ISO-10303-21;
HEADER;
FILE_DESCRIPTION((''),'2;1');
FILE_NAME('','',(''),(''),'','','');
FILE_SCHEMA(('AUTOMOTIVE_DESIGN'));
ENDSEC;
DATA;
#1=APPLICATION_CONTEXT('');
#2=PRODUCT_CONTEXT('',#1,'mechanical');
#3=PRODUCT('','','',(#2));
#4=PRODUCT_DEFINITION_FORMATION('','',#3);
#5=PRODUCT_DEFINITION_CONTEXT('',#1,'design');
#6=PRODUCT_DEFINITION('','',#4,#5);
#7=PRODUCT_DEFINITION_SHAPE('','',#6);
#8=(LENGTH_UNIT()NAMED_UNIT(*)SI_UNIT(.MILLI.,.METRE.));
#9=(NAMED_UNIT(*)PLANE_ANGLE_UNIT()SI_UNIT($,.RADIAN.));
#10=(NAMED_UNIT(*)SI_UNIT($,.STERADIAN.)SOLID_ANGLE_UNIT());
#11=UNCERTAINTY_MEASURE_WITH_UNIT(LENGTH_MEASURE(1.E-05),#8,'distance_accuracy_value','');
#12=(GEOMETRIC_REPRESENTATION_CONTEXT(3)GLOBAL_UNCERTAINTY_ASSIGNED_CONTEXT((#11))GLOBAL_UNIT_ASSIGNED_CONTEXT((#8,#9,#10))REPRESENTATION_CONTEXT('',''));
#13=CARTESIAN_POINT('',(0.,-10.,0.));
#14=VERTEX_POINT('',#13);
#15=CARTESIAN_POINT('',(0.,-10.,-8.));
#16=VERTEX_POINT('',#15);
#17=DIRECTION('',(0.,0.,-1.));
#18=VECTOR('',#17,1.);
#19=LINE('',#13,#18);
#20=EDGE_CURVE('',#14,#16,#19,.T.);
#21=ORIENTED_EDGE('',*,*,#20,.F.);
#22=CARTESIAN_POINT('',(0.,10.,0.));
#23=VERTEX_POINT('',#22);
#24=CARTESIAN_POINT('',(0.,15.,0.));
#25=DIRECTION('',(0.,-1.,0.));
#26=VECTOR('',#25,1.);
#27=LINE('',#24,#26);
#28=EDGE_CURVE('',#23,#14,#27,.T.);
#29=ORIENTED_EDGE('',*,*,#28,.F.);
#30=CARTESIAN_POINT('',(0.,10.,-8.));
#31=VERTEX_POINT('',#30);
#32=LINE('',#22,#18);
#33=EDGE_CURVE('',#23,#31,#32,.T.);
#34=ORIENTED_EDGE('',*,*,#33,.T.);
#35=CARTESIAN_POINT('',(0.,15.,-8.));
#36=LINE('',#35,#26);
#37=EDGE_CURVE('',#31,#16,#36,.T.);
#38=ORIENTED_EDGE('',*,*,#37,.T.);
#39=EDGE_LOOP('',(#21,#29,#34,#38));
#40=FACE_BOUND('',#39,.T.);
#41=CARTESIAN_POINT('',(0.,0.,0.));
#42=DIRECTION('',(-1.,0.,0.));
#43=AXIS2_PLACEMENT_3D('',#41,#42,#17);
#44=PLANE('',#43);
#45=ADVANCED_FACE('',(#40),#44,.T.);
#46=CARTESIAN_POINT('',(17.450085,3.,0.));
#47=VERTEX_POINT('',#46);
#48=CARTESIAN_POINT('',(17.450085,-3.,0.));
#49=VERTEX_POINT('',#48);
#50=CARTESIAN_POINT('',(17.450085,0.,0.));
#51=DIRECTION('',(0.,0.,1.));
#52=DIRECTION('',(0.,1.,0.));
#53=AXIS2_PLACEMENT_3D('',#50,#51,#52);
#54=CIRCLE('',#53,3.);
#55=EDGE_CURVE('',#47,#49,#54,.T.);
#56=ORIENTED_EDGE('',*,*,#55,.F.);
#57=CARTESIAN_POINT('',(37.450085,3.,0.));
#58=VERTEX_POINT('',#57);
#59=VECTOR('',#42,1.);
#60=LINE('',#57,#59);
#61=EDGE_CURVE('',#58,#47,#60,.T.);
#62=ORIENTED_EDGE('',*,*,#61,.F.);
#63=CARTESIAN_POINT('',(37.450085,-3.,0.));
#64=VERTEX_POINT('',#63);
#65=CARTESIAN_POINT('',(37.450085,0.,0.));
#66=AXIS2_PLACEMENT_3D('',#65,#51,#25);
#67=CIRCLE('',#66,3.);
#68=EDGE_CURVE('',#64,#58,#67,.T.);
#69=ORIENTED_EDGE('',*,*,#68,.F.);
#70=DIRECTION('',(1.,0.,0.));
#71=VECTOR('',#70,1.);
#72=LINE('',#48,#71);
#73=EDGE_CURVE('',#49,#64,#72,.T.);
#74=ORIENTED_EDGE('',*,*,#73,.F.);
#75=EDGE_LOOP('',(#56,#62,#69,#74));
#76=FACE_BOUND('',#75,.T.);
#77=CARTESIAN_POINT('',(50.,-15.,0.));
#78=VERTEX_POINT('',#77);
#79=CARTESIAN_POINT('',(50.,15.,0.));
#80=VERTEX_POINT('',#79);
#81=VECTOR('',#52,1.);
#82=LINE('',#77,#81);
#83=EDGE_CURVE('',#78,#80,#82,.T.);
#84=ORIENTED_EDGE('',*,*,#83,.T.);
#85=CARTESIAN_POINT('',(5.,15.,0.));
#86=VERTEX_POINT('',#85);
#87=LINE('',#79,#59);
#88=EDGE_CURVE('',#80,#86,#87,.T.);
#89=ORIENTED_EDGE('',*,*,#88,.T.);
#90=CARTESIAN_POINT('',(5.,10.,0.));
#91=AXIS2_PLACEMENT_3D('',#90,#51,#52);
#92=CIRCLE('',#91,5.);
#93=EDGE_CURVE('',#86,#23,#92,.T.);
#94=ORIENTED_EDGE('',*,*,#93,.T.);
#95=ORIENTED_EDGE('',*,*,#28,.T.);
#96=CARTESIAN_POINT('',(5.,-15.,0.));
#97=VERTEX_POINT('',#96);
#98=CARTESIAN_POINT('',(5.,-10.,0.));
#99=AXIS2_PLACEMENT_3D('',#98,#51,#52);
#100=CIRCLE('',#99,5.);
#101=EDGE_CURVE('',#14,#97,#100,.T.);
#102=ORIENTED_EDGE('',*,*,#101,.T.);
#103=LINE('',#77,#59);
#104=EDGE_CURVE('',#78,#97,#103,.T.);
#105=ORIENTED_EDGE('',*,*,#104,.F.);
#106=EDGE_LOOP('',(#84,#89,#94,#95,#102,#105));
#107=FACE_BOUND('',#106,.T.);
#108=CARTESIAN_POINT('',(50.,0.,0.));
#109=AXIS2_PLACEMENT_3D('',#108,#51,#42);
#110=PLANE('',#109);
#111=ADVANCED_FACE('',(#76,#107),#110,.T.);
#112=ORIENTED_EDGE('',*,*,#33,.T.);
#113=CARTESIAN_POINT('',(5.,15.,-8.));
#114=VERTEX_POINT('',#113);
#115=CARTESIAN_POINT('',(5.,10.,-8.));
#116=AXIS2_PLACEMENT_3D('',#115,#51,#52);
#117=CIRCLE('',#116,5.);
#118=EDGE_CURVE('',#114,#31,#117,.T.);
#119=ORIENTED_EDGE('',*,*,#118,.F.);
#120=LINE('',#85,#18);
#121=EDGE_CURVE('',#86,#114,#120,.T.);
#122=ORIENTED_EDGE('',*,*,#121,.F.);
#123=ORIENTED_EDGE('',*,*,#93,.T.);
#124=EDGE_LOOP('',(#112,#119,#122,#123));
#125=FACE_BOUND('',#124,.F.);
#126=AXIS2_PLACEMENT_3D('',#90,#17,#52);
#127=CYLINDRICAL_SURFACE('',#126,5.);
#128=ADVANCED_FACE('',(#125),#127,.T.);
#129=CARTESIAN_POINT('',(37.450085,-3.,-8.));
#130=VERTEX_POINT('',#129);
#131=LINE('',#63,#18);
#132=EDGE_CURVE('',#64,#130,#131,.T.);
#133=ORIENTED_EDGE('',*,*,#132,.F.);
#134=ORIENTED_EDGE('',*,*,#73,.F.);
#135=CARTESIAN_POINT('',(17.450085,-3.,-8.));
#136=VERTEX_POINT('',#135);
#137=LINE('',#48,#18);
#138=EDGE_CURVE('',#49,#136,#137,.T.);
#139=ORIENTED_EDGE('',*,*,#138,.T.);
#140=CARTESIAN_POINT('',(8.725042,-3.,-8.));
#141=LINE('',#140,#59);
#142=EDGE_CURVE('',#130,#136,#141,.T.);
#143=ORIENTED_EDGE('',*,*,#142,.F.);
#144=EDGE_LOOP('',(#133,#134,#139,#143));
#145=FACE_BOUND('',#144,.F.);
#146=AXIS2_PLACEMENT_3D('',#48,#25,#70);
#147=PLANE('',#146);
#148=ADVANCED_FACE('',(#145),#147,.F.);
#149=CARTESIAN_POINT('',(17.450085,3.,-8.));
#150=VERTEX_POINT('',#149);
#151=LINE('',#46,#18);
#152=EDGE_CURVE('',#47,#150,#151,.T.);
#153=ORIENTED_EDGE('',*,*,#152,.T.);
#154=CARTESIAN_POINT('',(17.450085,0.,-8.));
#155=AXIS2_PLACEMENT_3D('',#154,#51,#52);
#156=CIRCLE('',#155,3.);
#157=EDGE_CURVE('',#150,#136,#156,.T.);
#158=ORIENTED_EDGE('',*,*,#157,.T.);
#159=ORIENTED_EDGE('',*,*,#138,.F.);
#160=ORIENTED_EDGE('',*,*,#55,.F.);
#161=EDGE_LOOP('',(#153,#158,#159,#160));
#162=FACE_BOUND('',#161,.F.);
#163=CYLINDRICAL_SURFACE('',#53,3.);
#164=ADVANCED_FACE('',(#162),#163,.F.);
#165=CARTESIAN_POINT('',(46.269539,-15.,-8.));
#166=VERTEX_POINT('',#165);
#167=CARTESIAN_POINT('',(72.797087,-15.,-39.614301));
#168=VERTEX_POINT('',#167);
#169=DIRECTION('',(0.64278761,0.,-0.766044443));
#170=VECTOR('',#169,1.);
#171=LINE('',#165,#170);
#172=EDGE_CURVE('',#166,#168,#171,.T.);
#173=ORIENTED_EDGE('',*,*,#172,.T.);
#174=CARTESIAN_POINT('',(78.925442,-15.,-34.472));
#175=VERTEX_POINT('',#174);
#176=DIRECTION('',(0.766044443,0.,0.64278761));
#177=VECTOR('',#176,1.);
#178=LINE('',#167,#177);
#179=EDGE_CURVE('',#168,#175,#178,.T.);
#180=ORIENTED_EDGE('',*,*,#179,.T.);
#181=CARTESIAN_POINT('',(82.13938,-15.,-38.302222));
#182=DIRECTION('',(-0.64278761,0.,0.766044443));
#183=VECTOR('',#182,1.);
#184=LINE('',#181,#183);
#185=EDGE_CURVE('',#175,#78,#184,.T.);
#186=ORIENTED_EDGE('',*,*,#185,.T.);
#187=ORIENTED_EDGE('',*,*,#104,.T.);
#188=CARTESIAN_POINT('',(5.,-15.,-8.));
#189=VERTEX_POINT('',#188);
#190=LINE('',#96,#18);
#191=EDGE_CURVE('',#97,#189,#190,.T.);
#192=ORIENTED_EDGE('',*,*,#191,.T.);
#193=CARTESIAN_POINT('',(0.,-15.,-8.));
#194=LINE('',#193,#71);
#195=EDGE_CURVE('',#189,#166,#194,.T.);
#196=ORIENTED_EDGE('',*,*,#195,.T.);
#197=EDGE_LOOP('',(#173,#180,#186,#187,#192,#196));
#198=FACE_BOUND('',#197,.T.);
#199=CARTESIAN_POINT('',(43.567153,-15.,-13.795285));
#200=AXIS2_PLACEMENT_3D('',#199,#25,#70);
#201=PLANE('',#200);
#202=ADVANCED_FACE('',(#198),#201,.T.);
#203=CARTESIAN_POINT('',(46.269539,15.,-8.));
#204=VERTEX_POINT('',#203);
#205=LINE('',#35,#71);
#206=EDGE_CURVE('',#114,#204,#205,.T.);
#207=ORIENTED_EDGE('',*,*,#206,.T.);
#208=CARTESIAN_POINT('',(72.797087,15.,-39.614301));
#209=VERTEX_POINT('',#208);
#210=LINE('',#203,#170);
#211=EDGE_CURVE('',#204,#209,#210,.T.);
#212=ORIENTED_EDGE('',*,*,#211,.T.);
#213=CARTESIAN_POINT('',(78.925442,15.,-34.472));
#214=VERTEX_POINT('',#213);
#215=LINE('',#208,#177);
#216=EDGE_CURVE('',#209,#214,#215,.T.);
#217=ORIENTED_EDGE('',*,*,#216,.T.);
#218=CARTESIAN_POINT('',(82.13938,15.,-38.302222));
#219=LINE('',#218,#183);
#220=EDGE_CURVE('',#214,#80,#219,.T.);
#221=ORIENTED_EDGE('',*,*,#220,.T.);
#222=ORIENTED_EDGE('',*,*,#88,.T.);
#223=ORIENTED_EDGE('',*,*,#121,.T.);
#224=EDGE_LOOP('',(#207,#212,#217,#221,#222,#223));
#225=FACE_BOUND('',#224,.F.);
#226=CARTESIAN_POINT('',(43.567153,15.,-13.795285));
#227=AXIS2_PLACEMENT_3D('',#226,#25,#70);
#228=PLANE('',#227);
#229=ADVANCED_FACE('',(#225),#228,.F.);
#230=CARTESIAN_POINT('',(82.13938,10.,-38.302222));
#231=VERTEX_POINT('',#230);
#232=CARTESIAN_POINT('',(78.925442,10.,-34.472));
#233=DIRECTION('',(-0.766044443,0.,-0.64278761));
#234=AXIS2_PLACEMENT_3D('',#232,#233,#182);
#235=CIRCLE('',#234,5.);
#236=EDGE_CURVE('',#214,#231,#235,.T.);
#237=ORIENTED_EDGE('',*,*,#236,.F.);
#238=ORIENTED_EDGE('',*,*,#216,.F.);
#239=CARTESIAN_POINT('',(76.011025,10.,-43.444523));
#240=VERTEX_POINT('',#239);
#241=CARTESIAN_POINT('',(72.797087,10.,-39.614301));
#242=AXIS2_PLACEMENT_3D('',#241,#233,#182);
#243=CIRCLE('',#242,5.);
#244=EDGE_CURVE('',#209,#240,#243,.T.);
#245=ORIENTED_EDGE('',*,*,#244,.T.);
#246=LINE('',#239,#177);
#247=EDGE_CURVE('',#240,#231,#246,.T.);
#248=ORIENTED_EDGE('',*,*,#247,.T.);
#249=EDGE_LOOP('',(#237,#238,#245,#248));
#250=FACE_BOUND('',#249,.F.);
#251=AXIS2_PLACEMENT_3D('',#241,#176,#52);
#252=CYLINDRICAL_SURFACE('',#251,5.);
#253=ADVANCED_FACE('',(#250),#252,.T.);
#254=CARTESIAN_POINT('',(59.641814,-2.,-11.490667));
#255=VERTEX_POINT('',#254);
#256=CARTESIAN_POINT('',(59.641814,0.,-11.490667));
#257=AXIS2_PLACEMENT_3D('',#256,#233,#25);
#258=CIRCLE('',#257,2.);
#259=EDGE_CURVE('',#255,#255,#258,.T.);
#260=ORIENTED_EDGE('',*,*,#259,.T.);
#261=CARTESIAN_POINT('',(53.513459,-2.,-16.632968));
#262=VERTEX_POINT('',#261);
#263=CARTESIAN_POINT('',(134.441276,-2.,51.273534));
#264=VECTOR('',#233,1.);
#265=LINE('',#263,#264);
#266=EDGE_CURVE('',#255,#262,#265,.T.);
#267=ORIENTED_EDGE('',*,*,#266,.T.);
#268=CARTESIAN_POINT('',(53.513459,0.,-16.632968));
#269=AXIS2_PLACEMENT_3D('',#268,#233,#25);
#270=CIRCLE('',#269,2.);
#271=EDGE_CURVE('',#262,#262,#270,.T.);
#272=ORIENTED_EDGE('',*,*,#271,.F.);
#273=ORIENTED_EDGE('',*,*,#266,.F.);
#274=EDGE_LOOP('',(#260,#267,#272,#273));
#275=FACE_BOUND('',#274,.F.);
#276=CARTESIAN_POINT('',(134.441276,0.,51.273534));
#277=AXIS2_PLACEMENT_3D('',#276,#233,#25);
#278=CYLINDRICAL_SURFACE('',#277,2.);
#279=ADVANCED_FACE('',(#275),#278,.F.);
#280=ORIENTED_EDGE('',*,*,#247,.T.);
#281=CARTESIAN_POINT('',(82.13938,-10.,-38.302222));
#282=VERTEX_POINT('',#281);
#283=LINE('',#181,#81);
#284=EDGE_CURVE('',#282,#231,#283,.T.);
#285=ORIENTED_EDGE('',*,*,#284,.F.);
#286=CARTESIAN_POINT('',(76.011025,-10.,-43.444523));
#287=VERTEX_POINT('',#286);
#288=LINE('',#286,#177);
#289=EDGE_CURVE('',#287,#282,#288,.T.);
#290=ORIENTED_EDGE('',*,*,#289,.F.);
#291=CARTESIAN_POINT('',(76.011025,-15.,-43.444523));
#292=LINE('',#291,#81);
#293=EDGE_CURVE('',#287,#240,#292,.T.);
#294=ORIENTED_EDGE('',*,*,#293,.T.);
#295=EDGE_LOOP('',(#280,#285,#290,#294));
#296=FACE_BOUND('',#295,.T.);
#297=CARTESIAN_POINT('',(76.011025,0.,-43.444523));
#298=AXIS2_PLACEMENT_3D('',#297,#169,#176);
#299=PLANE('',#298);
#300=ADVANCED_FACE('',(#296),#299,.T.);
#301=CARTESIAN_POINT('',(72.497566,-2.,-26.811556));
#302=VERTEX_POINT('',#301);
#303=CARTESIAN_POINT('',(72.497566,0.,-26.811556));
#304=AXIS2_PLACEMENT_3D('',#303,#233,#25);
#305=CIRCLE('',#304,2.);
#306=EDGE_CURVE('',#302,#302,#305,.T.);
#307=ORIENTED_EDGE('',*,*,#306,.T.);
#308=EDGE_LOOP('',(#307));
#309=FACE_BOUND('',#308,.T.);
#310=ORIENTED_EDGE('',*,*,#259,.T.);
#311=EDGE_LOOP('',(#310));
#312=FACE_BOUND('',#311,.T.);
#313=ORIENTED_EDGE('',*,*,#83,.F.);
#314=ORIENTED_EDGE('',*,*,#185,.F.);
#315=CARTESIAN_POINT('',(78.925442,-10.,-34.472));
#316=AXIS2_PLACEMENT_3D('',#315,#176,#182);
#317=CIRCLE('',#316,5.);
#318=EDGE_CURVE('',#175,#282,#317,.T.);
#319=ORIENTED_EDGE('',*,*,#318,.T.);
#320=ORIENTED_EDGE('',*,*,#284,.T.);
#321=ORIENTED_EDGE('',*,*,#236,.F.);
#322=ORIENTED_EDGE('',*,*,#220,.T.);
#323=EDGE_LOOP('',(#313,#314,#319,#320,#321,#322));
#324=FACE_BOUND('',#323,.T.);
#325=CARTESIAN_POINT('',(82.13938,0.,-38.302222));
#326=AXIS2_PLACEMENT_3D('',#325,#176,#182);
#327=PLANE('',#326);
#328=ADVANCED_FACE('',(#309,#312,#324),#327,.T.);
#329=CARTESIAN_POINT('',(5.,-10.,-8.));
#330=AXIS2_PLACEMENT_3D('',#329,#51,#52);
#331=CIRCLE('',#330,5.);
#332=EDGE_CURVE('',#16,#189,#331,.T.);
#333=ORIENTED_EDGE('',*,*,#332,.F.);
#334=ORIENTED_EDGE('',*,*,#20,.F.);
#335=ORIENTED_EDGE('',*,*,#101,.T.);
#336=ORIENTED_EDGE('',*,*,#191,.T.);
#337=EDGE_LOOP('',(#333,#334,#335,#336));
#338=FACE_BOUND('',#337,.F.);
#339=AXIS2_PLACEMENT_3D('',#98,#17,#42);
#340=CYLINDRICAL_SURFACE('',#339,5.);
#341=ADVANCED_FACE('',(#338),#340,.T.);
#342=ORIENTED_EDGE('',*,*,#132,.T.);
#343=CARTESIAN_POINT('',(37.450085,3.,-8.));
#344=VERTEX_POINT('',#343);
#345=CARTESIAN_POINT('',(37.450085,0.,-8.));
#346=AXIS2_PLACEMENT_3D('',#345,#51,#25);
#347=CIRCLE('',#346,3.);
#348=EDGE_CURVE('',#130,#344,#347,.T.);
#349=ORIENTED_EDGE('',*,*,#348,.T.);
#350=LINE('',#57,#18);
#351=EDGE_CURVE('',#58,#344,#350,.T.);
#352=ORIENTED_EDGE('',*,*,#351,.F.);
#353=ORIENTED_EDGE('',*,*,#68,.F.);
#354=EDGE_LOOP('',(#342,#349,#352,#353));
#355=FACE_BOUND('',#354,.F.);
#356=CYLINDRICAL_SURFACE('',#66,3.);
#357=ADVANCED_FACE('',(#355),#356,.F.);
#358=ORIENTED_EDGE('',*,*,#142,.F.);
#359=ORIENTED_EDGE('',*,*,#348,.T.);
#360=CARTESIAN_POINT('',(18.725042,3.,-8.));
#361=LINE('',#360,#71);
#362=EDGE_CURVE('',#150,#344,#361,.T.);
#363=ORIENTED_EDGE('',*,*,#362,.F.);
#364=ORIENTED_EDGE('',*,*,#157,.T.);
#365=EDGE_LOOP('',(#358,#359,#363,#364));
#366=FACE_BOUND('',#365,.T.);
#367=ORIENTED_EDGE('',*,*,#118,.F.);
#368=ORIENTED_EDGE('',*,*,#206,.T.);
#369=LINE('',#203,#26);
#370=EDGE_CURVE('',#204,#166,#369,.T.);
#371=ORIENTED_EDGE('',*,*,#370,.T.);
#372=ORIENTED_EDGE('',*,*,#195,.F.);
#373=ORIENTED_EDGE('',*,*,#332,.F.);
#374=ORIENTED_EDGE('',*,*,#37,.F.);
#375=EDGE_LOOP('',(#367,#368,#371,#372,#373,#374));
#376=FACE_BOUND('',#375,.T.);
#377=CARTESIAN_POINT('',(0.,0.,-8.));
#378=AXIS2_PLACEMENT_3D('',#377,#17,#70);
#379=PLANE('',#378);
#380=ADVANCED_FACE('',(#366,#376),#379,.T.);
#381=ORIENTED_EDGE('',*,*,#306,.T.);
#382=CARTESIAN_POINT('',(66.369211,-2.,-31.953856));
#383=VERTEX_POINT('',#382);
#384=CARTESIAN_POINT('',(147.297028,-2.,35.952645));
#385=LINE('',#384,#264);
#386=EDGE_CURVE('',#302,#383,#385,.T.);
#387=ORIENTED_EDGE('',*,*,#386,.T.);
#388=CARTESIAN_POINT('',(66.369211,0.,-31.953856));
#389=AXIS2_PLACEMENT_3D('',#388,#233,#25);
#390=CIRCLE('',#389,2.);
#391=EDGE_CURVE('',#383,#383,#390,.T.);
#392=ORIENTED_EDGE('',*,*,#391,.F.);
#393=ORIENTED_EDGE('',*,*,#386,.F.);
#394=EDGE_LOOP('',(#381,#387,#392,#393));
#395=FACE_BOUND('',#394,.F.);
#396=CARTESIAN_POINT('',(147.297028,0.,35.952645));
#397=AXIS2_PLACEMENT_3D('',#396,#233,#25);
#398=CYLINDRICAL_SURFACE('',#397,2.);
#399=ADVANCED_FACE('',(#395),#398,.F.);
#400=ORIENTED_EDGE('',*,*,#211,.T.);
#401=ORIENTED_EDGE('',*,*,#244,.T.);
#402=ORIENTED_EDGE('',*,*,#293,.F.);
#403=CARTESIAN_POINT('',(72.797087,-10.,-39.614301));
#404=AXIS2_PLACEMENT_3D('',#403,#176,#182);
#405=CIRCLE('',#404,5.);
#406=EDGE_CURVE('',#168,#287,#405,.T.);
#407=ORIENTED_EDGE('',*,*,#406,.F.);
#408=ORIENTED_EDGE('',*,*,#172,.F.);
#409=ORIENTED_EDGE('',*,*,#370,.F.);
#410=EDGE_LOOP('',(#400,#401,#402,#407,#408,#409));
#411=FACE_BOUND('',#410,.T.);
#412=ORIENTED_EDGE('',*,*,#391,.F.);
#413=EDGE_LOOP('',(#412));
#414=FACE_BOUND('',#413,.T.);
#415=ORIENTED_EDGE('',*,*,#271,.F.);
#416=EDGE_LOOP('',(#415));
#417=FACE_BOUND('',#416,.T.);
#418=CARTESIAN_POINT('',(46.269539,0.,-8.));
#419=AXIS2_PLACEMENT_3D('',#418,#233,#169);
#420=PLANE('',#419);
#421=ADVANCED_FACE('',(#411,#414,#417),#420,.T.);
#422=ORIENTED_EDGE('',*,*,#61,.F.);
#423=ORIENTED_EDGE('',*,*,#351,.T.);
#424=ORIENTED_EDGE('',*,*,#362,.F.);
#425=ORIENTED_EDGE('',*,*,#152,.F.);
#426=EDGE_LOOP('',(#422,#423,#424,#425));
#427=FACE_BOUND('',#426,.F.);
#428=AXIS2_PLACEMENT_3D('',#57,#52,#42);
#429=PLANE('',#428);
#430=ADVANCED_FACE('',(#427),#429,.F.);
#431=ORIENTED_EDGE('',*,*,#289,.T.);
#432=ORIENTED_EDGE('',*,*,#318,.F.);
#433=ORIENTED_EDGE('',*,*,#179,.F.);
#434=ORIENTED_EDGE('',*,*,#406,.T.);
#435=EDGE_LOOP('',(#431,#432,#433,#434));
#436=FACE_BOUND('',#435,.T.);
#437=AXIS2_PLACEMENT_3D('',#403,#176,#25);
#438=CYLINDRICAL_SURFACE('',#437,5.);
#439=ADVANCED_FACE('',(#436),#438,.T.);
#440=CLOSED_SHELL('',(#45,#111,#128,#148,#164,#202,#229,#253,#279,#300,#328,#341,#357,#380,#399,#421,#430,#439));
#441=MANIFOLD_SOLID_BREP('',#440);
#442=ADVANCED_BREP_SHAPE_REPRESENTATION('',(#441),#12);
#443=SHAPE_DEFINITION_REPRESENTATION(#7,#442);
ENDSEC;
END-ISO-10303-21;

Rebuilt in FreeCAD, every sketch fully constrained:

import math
import FreeCAD as App
import Part
import Sketcher
Q = App.Units.Quantity


def edges_at(feature, points):
    """Names of the edges that pass closest to the given points."""
    edges = feature.Shape.Edges
    near = lambda p: min(range(len(edges)), key=lambda i: edges[i].distToShape(Part.Vertex(*p))[0])
    return sorted({f"Edge{near(p) + 1}" for p in points})


def add_polygon(sketch, points):
    """Adds a closed chain of lines whose ends are joined by coincident constraints."""
    first, n = sketch.GeometryCount, len(points)
    for a, b in zip(points, points[1:] + points[:1]):
        sketch.addGeometry(Part.LineSegment(App.Vector(*a, 0), App.Vector(*b, 0)), False)
    for i in range(n):
        sketch.addConstraint(Sketcher.Constraint("Coincident", first + i, 2, first + (i + 1) % n, 1))

doc = App.newDocument("Part")
params = doc.addObject("Spreadsheet::Sheet", "Params")
for row, (alias, value) in enumerate([
    ("sketch1_width", "50 mm"),
    ("sketch1_height", "8 mm"),
    ("sketch1_length", "8 mm"),
    ("sketch1_length2", "50 mm"),
    ("pad1_length", "30 mm"),
    ("sketch2_radius", "3 mm"),
    ("sketch2_width", "20 mm"),
    ("sketch3_diameter", "4 mm"),
    ("hole_diameter", "4 mm"),
    ("fillet_radius", "5 mm"),
], start=1):
    params.set(f"A{row}", alias)
    params.set(f"B{row}", "=" + value)
    params.setAlias(f"B{row}", alias)

body = doc.addObject("PartDesign::Body", "Body")

# Sketch on XZ plane
sketch1 = body.newObject("Sketcher::SketchObject", "Sketch")
sketch1.AttachmentSupport = (doc.getObject("XZ_Plane"), [""])
sketch1.MapMode = "FlatFace"
add_polygon(sketch1, [(50, 0), (0, 0), (0, -8), (46, -8), (76, -43), (82, -38)])  # lines 0-5
sketch1.addConstraint([
    Sketcher.Constraint("Horizontal", 0),
    Sketcher.Constraint("Vertical", 1),
    Sketcher.Constraint("Horizontal", 2),
    Sketcher.Constraint("Coincident", 0, 2, -1, 1),
    Sketcher.Constraint("Perpendicular", 3, 4),
    Sketcher.Constraint("Perpendicular", 4, 5),
    Sketcher.Constraint("DistanceX", 0, 2, 0, 1, Q("50 mm")),
    Sketcher.Constraint("DistanceY", 1, 2, 1, 1, Q("8 mm")),
    Sketcher.Constraint("Angle", 3, Q("-50 deg")),
    Sketcher.Constraint("Distance", 4, Q("8 mm")),
    Sketcher.Constraint("Distance", 5, Q("50 mm")),
])
sketch1.setExpression("Constraints[12]", "Params.sketch1_width")
sketch1.setExpression("Constraints[13]", "Params.sketch1_height")
sketch1.setExpression("Constraints[15]", "Params.sketch1_length")
sketch1.setExpression("Constraints[16]", "Params.sketch1_length2")
pad1 = body.newObject("PartDesign::Pad", "Pad")
pad1.Profile = sketch1
pad1.setExpression("Length", "Params.pad1_length")
pad1.Midplane = True

# Sketch on XY plane
sketch2 = body.newObject("Sketcher::SketchObject", "Sketch001")
sketch2.AttachmentSupport = (doc.getObject("XY_Plane"), [""])
sketch2.MapMode = "FlatFace"
sketch2.addGeometry([
    Part.ArcOfCircle(Part.Circle(App.Vector(17.5, 0, 0), App.Vector(0, 0, 1), 3), math.radians(90), math.radians(270)),
    Part.LineSegment(App.Vector(17.5, -3, 0), App.Vector(37.5, -3, 0)),
    Part.ArcOfCircle(Part.Circle(App.Vector(37.5, 0, 0), App.Vector(0, 0, 1), 3), math.radians(-90), math.radians(90)),
    Part.LineSegment(App.Vector(37.5, 3, 0), App.Vector(17.5, 3, 0)),
], False)
sketch2.addConstraint([
    Sketcher.Constraint("Tangent", 0, 2, 1, 1),
    Sketcher.Constraint("Tangent", 1, 2, 2, 1),
    Sketcher.Constraint("Tangent", 2, 2, 3, 1),
    Sketcher.Constraint("Tangent", 3, 2, 0, 1),
    Sketcher.Constraint("Horizontal", 1),
    Sketcher.Constraint("Horizontal", 3),
    Sketcher.Constraint("PointOnObject", 0, 3, -1),
    Sketcher.Constraint("Radius", 0, Q("3 mm")),
    Sketcher.Constraint("DistanceX", 1, 1, 1, 2, Q("20 mm")),
    Sketcher.Constraint("DistanceX", -1, 1, 0, 3, Q("17.450085 mm")),
])
sketch2.setExpression("Constraints[7]", "Params.sketch2_radius")
sketch2.setExpression("Constraints[8]", "Params.sketch2_width")
pocket1 = body.newObject("PartDesign::Pocket", "Pocket")
pocket1.Profile = sketch2
pocket1.Type = "ThroughAll"

# Sketch on an angled plane
sketch3 = body.newObject("Sketcher::SketchObject", "Sketch002")
sketch3.Placement = App.Placement(App.Vector(29.341204, 0, 24.620194), App.Rotation(App.Vector(0, 1, 0), App.Vector(-0.64278761, 0, 0.766044443), App.Vector(0.766044443, 0, 0.64278761), "ZXY"))
sketch3.addGeometry([
    Part.Circle(App.Vector(0, -47.1, 0), App.Vector(0, 0, 1), 2),
    Part.Circle(App.Vector(0, -67.1, 0), App.Vector(0, 0, 1), 2),
], False)
sketch3.addConstraint([
    Sketcher.Constraint("Equal", 0, 1),
    Sketcher.Constraint("PointOnObject", 0, 3, -2),
    Sketcher.Constraint("PointOnObject", 1, 3, -2),
    Sketcher.Constraint("Diameter", 0, Q("4 mm")),
    Sketcher.Constraint("DistanceY", 1, 3, 0, 3, Q("20 mm")),
    Sketcher.Constraint("DistanceY", 0, 3, -1, 1, Q("47.13938 mm")),
])
sketch3.setExpression("Constraints[3]", "Params.sketch3_diameter")
doc.recompute()
hole = body.newObject("PartDesign::Hole", "Hole")
hole.Profile = sketch3
hole.ThreadType = "None"
hole.setExpression("Diameter", "Params.hole_diameter")
hole.DepthType = "ThroughAll"
doc.recompute()

fillet = body.newObject("PartDesign::Fillet", "Fillet")
fillet.Base = (hole, edges_at(hole, [
    (79.075, -15, -40.873),
    (79.075, 15, -40.873),
    (0, 15, -4),
    (0, -15, -4),
]))
fillet.setExpression("Radius", "Params.fillet_radius")

doc.recompute()
